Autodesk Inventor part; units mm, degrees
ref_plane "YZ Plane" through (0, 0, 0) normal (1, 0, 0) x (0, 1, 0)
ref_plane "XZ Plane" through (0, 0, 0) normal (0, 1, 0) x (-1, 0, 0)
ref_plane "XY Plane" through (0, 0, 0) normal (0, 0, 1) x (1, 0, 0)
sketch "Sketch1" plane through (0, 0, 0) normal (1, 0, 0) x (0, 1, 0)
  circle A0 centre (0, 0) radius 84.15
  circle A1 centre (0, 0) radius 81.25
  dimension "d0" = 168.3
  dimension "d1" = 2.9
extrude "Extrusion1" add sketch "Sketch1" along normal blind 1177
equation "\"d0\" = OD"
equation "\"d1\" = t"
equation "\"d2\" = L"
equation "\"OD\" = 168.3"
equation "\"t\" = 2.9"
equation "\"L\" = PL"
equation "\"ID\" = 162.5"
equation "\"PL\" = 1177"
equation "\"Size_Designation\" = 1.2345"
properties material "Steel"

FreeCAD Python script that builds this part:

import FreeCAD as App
import Part
import Sketcher

V = App.Vector
Q = App.Units.Quantity

doc = App.newDocument("Part")
params = doc.addObject("Spreadsheet::Sheet", "Params")
for row, (alias, value) in enumerate([
    ("sketch1_diameter", "168.3 mm"),
    ("sketch1_diameter2", "162.5 mm"),
    ("pad1_length", "1177 mm"),
], start=1):
    params.set(f"A{row}", alias)
    params.set(f"B{row}", "=" + value)
    params.setAlias(f"B{row}", alias)

body = doc.addObject("PartDesign::Body", "Body")

# Sketch on YZ plane
sketch1 = doc.addObject("Sketcher::SketchObject", "Sketch")
body.addObject(sketch1)
sketch1.AttachmentSupport = (doc.YZ_Plane, [""])
sketch1.MapMode = "FlatFace"
sketch1.addGeometry([
    Part.Circle(V(0, 0, 0), V(0, 0, 1), 84),
    Part.Circle(V(0, 0, 0), V(0, 0, 1), 81),
], False)
sketch1.addConstraint([
    Sketcher.Constraint("Coincident", 0, 3, -1, 1),
    Sketcher.Constraint("Coincident", 1, 3, -1, 1),
    Sketcher.Constraint("Diameter", 0, Q("168.3 mm")),
    Sketcher.Constraint("Diameter", 1, Q("162.5 mm")),
])
sketch1.setExpression("Constraints[2]", "Params.sketch1_diameter")
sketch1.setExpression("Constraints[3]", "Params.sketch1_diameter2")
pad1 = doc.addObject("PartDesign::Pad", "Pad")
body.addObject(pad1)
pad1.Profile = sketch1
pad1.setExpression("Length", "Params.pad1_length")

doc.recompute()
